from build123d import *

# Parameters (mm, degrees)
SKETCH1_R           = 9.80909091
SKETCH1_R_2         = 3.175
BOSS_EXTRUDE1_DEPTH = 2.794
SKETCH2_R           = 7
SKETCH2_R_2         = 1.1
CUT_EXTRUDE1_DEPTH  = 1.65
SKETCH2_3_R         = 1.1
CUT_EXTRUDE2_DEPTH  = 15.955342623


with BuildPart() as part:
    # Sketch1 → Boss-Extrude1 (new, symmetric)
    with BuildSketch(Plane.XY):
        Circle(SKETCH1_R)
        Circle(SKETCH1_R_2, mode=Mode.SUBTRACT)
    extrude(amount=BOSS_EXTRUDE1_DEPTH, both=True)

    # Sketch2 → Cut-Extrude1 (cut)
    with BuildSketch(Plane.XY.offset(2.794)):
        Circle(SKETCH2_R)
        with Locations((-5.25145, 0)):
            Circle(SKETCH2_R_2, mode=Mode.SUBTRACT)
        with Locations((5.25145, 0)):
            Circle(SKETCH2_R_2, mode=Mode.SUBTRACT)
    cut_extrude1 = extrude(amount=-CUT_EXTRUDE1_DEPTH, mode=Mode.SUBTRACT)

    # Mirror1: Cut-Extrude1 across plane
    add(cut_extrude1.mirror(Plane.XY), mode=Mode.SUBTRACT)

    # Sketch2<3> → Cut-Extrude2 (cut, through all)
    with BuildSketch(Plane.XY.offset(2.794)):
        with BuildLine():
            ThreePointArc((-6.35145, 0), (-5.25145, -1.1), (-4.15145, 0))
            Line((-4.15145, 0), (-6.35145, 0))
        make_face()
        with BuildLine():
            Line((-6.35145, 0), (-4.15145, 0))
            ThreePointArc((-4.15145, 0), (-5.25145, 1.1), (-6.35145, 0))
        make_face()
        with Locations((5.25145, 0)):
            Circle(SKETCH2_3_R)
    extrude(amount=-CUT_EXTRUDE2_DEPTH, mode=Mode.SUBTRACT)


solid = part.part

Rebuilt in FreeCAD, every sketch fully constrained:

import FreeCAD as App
import Part
import Sketcher

V = App.Vector

doc = App.newDocument("Part")
params = doc.addObject("Spreadsheet::Sheet", "Params")
for row, (alias, value) in enumerate([
    ("sketch1_diameter", "6.35 mm"),
    ("pad1_length", "5.588 mm"),
    ("sketch2_diameter", "14 mm"),
    ("sketch2_diameter2", "2.2 mm"),
    ("pocket1_length", "1.65 mm"),
    ("sketch3_diameter", "2.2 mm"),
], start=1):
    params.set(f"A{row}", alias)
    params.set(f"B{row}", "=" + value)
    params.setAlias(f"B{row}", alias)

body = doc.addObject("PartDesign::Body", "Body")

# Sketch on XY plane
sketch1 = doc.addObject("Sketcher::SketchObject", "Sketch")
body.addObject(sketch1)
sketch1.AttachmentSupport = (doc.XY_Plane, [""])
sketch1.MapMode = "FlatFace"
sketch1.addGeometry([
    Part.Circle(V(0, 0, 0), V(0, 0, 1), 9.809091),
    Part.Circle(V(0, 0, 0), V(0, 0, 1), 3.175),
], False)
sketch1.addConstraint([
    Sketcher.Constraint("Coincident", 0, 3, -1, 1),
    Sketcher.Constraint("Coincident", 1, 3, -1, 1),
    Sketcher.Constraint("Diameter", 1, 6.35),
    Sketcher.Constraint("Diameter", 0, 19.618182),
])
sketch1.setExpression("Constraints[2]", "Params.sketch1_diameter")
pad1 = doc.addObject("PartDesign::Pad", "Pad")
body.addObject(pad1)
pad1.Profile = sketch1
pad1.setExpression("Length", "Params.pad1_length")
pad1.Midplane = True

# Sketch on XY plane
sketch2 = doc.addObject("Sketcher::SketchObject", "Sketch001")
body.addObject(sketch2)
sketch2.AttachmentSupport = (doc.XY_Plane, [""])
sketch2.MapMode = "FlatFace"
sketch2.AttachmentOffset = App.Placement(V(0, 0, 2.794), App.Rotation())
sketch2.addGeometry([
    Part.Circle(V(0, 0, 0), V(0, 0, 1), 7),
    Part.Circle(V(-5.25145, 0, 0), V(0, 0, 1), 1.1),
    Part.Circle(V(5.25145, 0, 0), V(0, 0, 1), 1.1),
], False)
sketch2.addConstraint([
    Sketcher.Constraint("Coincident", 0, 3, -1, 1),
    Sketcher.Constraint("Equal", 1, 2),
    Sketcher.Constraint("Symmetric", 1, 3, 2, 3, -1, 1),
    Sketcher.Constraint("PointOnObject", 1, 3, -1),
    Sketcher.Constraint("Diameter", 0, 14.0),
    Sketcher.Constraint("Diameter", 1, 2.2),
    Sketcher.Constraint("DistanceX", 1, 3, 2, 3, 10.5029),
])
sketch2.setExpression("Constraints[4]", "Params.sketch2_diameter")
sketch2.setExpression("Constraints[5]", "Params.sketch2_diameter2")
pocket1 = doc.addObject("PartDesign::Pocket", "Pocket")
body.addObject(pocket1)
pocket1.Profile = sketch2
pocket1.setExpression("Length", "Params.pocket1_length")
doc.recompute()

mirrored = doc.addObject("PartDesign::Mirrored", "Mirrored")
body.addObject(mirrored)
mirrored.Originals = [pocket1]
mirrored.MirrorPlane = (doc.XY_Plane, [""])
body.Tip = mirrored

# Sketch on XY plane
sketch3 = doc.addObject("Sketcher::SketchObject", "Sketch002")
body.addObject(sketch3)
sketch3.AttachmentSupport = (doc.XY_Plane, [""])
sketch3.MapMode = "FlatFace"
sketch3.AttachmentOffset = App.Placement(V(0, 0, 2.794), App.Rotation())
sketch3.addGeometry([
    Part.Circle(V(-5.25145, 0, 0), V(0, 0, 1), 1.1),
    Part.Circle(V(5.25145, 0, 0), V(0, 0, 1), 1.1),
], False)
sketch3.addConstraint([
    Sketcher.Constraint("Equal", 0, 1),
    Sketcher.Constraint("Symmetric", 0, 3, 1, 3, -1, 1),
    Sketcher.Constraint("PointOnObject", 0, 3, -1),
    Sketcher.Constraint("Diameter", 0, 2.2),
    Sketcher.Constraint("DistanceX", 0, 3, 1, 3, 10.5029),
])
sketch3.setExpression("Constraints[3]", "Params.sketch3_diameter")
pocket2 = doc.addObject("PartDesign::Pocket", "Pocket001")
body.addObject(pocket2)
pocket2.Profile = sketch3
pocket2.Type = "ThroughAll"

doc.recompute()
